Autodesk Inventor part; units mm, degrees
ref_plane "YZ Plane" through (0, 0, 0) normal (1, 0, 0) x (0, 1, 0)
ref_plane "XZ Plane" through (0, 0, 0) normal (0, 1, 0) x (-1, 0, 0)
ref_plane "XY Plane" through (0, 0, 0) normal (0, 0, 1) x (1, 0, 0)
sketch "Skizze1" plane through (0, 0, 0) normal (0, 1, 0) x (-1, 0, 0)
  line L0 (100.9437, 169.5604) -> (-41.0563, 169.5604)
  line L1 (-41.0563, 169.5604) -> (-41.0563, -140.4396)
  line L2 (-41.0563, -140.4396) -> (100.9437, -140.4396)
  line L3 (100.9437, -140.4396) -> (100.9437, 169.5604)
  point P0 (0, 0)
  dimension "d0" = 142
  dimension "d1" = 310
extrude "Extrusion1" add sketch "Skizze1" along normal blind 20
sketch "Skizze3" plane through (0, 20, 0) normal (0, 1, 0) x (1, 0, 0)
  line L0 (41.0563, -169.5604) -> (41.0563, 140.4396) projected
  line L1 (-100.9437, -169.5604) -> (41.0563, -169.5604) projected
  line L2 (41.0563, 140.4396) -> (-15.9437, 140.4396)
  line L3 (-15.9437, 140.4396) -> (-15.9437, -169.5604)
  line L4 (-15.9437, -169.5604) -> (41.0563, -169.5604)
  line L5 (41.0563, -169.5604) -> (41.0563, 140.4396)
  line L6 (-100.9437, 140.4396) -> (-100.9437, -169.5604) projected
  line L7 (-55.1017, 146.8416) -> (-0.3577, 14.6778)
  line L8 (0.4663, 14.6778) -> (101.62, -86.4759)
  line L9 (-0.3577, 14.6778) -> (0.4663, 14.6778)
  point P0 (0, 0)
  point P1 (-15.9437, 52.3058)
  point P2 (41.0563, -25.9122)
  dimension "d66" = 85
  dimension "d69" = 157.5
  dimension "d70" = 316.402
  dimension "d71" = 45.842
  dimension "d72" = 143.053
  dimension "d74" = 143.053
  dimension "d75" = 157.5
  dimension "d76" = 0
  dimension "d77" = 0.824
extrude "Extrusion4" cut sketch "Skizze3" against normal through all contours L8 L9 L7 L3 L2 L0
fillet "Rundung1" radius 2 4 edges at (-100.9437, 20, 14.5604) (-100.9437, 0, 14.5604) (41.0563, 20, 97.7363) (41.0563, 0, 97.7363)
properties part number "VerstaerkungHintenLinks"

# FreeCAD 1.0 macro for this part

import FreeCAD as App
import Part
import Sketcher
from FreeCAD import Vector
Q = App.Units.Quantity


def edges_at(feature, points):
    """Names of the edges that pass closest to the given points."""
    edges = feature.Shape.Edges
    near = lambda p: min(range(len(edges)), key=lambda i: edges[i].distToShape(Part.Vertex(*p))[0])
    return sorted({f"Edge{near(p) + 1}" for p in points})


def add_polygon(sketch, points):
    """Adds a closed chain of lines whose ends are joined by coincident constraints."""
    first, n = sketch.GeometryCount, len(points)
    for a, b in zip(points, points[1:] + points[:1]):
        sketch.addGeometry(Part.LineSegment(App.Vector(*a, 0), App.Vector(*b, 0)), False)
    for i in range(n):
        sketch.addConstraint(Sketcher.Constraint("Coincident", first + i, 2, first + (i + 1) % n, 1))

doc = App.newDocument("Part")
body = doc.addObject("PartDesign::Body", "Body")

sketch1 = body.newObject("Sketcher::SketchObject", "Sketch")
sketch1.AttachmentSupport = (doc.getObject("XZ_Plane"), [""])
sketch1.MapMode = "FlatFace"
add_polygon(sketch1, [(-101, -140), (-101, 170), (41, 170), (41, -140)])
sketch1.addConstraint([
    Sketcher.Constraint("Vertical", 0),
    Sketcher.Constraint("Horizontal", 1),
    Sketcher.Constraint("Vertical", 2),
    Sketcher.Constraint("Horizontal", 3),
    Sketcher.Constraint("DistanceX", 1, 1, 1, 2, 142.0),
    Sketcher.Constraint("DistanceY", 0, 1, 0, 2, 310.0),
    Sketcher.Constraint("DistanceX", 0, 2, -1, 1, 100.9437),
    Sketcher.Constraint("DistanceY", -1, 1, 0, 2, 169.5604),
])
pad1 = body.newObject("PartDesign::Pad", "Pad")
pad1.Profile = sketch1
pad1.Length = 20
pad1.Reversed = True

sketch2 = body.newObject("Sketcher::SketchObject", "Sketch001")
sketch2.AttachmentSupport = (doc.getObject("XZ_Plane"), [""])
sketch2.MapMode = "FlatFace"
sketch2.AttachmentOffset = App.Placement(Vector(0, 0, -20), App.Rotation())
add_polygon(sketch2, [(0.5, -14.7), (41.1, 25.9), (41.1, -140.4), (-15.9, -140.4), (-15.9, -52.3), (-0.4, -14.7)])
sketch2.addConstraint([
    Sketcher.Constraint("Vertical", 1),
    Sketcher.Constraint("Horizontal", 2),
    Sketcher.Constraint("Vertical", 3),
    Sketcher.Constraint("Horizontal", 5),
    Sketcher.Constraint("DistanceX", 2, 2, 2, 1, 57.0),
    Sketcher.Constraint("DistanceX", 5, 1, 5, 2, 0.824),
    Sketcher.Constraint("Angle", 0, Q("45 deg")),
    Sketcher.Constraint("Angle", 4, Q("67.5 deg")),
    Sketcher.Constraint("DistanceY", 4, 2, 0, 2, 40.59),
    Sketcher.Constraint("DistanceY", 1, 2, 1, 1, 166.3518),
    Sketcher.Constraint("DistanceX", -1, 1, 0, 2, 41.0563),
    Sketcher.Constraint("DistanceY", -1, 1, 0, 2, 25.9122),
])
pocket1 = body.newObject("PartDesign::Pocket", "Pocket")
pocket1.Profile = sketch2
pocket1.Type = "ThroughAll"
pocket1.Reversed = True
doc.recompute()

fillet = body.newObject("PartDesign::Fillet", "Fillet")
fillet.Base = (pocket1, edges_at(pocket1, [
    (-100.944, 20, 14.56),
    (-100.944, 0, 14.56),
    (41.056, 20, 97.736),
    (41.056, 0, 97.736),
]))
fillet.Radius = 2

doc.recompute()
